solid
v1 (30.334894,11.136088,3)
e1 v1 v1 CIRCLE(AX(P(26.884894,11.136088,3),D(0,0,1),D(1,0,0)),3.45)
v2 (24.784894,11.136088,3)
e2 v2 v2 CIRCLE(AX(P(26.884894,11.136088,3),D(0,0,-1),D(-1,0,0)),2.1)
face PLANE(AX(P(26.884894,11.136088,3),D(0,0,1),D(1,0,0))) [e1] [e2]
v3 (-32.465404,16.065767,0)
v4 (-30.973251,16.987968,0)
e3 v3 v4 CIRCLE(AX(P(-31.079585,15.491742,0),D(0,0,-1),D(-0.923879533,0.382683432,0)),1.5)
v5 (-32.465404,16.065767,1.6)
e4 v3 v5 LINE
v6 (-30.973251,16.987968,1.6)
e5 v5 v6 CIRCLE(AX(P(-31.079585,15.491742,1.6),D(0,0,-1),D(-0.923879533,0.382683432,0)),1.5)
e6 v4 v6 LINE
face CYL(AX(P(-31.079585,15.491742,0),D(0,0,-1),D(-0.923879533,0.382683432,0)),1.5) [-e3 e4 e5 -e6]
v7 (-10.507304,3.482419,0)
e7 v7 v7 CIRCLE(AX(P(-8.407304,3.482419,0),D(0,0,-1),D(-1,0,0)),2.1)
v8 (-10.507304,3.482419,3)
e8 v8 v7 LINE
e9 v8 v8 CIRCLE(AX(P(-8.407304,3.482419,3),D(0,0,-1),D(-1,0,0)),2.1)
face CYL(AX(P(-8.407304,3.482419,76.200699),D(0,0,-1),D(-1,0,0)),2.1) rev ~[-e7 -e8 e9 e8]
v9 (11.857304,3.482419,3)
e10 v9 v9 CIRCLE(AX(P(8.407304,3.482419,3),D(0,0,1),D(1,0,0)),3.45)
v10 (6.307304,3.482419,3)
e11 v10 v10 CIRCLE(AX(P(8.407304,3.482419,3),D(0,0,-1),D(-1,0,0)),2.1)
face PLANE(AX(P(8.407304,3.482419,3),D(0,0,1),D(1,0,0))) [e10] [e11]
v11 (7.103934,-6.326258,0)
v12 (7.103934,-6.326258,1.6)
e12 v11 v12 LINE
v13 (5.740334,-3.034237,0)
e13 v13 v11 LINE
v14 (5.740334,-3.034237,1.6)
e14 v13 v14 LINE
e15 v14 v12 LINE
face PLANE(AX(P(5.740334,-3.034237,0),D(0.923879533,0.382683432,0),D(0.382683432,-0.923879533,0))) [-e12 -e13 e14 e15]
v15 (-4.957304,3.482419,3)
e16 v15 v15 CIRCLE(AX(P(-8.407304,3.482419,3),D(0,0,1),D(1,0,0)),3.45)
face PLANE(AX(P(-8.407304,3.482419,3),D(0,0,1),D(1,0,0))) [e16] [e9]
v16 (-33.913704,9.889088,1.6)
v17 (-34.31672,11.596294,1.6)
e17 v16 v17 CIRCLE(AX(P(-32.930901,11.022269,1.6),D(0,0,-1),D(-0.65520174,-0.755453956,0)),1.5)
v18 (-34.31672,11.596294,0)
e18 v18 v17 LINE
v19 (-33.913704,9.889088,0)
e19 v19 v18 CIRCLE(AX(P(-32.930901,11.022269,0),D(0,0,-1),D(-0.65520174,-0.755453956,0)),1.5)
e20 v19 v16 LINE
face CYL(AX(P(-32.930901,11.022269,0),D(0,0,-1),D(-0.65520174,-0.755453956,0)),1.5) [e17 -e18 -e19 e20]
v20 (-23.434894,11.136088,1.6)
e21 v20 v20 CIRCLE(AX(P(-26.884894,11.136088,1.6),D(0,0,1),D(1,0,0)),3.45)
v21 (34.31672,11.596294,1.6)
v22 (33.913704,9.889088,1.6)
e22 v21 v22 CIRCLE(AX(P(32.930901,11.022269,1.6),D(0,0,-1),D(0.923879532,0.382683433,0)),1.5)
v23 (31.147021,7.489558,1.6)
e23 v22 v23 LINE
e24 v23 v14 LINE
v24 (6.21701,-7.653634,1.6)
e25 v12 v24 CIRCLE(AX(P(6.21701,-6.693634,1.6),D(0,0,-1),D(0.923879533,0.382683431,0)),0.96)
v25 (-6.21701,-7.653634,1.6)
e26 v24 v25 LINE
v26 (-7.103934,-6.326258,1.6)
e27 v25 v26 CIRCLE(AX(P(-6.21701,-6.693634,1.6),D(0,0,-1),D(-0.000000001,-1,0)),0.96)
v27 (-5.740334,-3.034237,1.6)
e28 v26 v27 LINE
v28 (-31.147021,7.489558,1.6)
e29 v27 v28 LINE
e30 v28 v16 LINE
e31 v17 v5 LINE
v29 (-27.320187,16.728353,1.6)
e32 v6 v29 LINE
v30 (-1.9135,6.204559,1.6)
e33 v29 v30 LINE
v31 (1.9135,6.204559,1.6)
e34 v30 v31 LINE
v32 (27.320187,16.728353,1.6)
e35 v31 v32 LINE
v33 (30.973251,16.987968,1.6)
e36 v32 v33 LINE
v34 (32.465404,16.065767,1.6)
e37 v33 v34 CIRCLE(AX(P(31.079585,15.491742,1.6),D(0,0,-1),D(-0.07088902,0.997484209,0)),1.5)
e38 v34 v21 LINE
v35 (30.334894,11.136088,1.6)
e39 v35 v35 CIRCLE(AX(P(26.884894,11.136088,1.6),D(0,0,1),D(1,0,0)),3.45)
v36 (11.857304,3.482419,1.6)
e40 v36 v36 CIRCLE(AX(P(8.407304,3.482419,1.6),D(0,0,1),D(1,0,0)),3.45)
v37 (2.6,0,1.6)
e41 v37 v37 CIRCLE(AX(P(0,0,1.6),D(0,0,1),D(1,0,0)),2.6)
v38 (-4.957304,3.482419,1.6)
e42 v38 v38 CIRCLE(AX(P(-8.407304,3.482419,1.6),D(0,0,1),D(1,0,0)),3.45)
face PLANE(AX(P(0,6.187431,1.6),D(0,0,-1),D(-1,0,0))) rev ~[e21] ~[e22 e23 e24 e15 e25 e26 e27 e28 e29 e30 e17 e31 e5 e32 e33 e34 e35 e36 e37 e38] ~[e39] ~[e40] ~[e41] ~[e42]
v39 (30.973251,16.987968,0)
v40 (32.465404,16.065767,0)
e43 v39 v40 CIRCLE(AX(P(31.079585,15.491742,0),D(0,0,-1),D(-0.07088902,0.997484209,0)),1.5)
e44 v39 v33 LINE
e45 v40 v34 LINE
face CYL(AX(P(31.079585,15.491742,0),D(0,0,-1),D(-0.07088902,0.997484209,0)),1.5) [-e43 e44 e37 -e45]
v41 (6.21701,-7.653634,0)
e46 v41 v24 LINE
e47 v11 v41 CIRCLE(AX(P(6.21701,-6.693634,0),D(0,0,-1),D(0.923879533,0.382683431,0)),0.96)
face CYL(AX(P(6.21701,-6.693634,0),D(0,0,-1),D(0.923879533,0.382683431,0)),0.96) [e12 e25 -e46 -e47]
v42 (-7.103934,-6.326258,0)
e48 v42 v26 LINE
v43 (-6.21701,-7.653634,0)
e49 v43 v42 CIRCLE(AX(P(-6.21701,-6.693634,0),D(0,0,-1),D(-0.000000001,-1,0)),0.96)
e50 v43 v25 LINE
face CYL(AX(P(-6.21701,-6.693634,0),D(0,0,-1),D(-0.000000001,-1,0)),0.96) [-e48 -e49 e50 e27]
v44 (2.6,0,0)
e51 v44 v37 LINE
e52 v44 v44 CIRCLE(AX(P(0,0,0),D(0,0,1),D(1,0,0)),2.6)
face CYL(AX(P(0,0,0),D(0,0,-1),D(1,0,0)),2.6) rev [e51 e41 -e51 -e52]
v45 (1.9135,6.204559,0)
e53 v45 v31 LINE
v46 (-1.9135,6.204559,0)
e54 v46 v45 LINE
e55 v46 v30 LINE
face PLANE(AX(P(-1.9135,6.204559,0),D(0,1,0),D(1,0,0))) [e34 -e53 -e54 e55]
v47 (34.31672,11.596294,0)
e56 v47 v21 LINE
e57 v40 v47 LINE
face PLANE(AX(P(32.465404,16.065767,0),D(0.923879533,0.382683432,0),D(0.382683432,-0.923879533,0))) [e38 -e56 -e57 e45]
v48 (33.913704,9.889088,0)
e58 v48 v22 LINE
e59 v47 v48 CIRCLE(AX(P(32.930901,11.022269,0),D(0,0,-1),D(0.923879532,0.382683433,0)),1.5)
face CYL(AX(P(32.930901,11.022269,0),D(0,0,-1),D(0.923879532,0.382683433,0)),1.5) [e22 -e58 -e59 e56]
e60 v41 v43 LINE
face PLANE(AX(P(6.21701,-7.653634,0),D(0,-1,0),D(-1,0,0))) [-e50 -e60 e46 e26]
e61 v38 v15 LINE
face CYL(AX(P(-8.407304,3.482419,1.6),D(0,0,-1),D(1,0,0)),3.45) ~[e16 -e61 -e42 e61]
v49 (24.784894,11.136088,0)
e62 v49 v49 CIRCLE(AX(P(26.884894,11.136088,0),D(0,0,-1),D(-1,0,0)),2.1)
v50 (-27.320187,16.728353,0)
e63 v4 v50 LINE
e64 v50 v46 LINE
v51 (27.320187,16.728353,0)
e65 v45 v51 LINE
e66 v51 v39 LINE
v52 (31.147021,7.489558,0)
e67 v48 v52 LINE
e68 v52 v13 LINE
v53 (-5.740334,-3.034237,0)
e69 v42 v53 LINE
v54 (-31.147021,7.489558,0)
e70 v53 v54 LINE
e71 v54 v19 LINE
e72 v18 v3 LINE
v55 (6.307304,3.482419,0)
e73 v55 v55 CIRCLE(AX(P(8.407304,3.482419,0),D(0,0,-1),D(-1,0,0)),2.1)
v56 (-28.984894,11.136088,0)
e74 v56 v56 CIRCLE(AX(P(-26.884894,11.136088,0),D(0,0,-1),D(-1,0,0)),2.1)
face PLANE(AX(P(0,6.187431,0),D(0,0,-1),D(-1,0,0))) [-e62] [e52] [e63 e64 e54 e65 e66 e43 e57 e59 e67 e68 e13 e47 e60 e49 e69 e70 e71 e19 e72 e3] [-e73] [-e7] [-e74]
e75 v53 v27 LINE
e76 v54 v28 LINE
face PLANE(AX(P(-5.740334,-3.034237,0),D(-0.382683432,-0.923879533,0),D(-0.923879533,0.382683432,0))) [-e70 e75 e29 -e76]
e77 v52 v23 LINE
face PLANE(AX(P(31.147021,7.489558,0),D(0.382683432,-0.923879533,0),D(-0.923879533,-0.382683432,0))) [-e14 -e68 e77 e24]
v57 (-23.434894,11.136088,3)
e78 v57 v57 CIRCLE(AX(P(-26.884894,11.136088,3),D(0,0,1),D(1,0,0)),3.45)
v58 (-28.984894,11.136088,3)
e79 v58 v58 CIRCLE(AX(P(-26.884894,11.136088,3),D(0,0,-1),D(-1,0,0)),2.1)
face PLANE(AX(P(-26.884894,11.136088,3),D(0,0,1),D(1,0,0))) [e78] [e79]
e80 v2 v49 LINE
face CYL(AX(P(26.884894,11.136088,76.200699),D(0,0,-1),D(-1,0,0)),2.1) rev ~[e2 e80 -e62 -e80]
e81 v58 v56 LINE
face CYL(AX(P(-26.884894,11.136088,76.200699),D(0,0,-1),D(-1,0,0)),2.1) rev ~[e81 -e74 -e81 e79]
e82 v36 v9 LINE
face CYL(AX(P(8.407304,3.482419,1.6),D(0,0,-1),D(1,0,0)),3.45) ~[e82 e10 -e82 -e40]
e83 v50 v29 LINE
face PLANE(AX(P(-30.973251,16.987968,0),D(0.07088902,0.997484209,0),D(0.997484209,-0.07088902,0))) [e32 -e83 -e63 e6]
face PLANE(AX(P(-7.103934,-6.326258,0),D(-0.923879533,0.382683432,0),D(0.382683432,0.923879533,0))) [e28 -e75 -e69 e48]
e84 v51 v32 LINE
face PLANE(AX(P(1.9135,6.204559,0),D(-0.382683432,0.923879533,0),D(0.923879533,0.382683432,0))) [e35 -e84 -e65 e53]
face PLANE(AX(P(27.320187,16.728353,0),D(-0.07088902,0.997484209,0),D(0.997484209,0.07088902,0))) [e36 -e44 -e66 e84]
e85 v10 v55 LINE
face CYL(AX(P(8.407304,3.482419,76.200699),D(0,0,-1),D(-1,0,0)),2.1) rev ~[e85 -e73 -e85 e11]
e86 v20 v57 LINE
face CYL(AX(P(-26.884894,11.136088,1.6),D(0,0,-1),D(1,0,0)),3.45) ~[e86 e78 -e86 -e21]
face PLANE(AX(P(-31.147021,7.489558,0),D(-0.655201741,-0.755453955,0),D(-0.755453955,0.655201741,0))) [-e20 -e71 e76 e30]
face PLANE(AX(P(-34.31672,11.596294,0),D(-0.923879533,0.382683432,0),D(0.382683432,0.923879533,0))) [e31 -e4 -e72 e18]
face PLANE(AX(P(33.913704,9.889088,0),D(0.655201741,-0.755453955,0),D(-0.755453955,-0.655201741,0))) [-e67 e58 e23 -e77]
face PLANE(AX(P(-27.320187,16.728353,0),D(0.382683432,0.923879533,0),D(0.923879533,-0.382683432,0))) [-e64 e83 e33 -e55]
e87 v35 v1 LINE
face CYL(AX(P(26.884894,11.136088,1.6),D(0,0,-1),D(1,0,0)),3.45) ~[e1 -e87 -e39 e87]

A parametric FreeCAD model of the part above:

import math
import FreeCAD as App
import Part
import Sketcher
from FreeCAD import Vector
Q = App.Units.Quantity

doc = App.newDocument("Part")
params = doc.addObject("Spreadsheet::Sheet", "Params")
for row, (alias, value) in enumerate([
    ("sketch1_diameter", "5.2 mm"),
    ("sketch1_radius", "1.5 mm"),
    ("sketch1_radius2", "0.96 mm"),
    ("sketch1_length", "27.5 mm"),
    ("pad1_length", "1.6 mm"),
    ("sketch2_diameter", "6.9 mm"),
    ("pad2_length", "1.4 mm"),
    ("sketch3_diameter", "4.2 mm"),
    ("hole_diameter", "4.2 mm"),
], start=1):
    params.set(f"A{row}", alias)
    params.set(f"B{row}", "=" + value)
    params.setAlias(f"B{row}", alias)

body = doc.addObject("PartDesign::Body", "Body")

sketch1 = body.newObject("Sketcher::SketchObject", "Sketch")
sketch1.AttachmentSupport = (doc.getObject("XY_Plane"), [""])
sketch1.MapMode = "FlatFace"
sketch1.addGeometry([
    Part.LineSegment(Vector(1.9135, 6.204559, 0), Vector(-1.9135, 6.204559, 0)),
    Part.LineSegment(Vector(-1.9135, 6.204559, 0), Vector(-27.320187, 16.728353, 0)),
    Part.LineSegment(Vector(-27.320187, 16.728353, 0), Vector(-30.973251, 16.987968, 0)),
    Part.ArcOfCircle(Part.Circle(Vector(-31.079585, 15.491742, 0), Vector(0, 0, 1), 1.5), math.radians(85.934949), math.radians(157.5)),
    Part.LineSegment(Vector(-32.465404, 16.065767, 0), Vector(-34.31672, 11.596294, 0)),
    Part.ArcOfCircle(Part.Circle(Vector(-32.930901, 11.022269, 0), Vector(0, 0, 1), 1.5), math.radians(157.5), math.radians(229.065051)),
    Part.LineSegment(Vector(-33.913704, 9.889088, 0), Vector(-31.147021, 7.489558, 0)),
    Part.LineSegment(Vector(-31.147021, 7.489558, 0), Vector(-5.740334, -3.034237, 0)),
    Part.LineSegment(Vector(-5.740334, -3.034237, 0), Vector(-7.103934, -6.326258, 0)),
    Part.ArcOfCircle(Part.Circle(Vector(-6.21701, -6.693634, 0), Vector(0, 0, 1), 0.96), math.radians(157.5), math.radians(270)),
    Part.LineSegment(Vector(-6.21701, -7.653634, 0), Vector(6.21701, -7.653634, 0)),
    Part.ArcOfCircle(Part.Circle(Vector(6.21701, -6.693634, 0), Vector(0, 0, 1), 0.96), math.radians(-90), math.radians(22.5)),
    Part.LineSegment(Vector(7.103934, -6.326258, 0), Vector(5.740334, -3.034237, 0)),
    Part.LineSegment(Vector(5.740334, -3.034237, 0), Vector(31.147021, 7.489558, 0)),
    Part.LineSegment(Vector(31.147021, 7.489558, 0), Vector(33.913704, 9.889088, 0)),
    Part.ArcOfCircle(Part.Circle(Vector(32.930901, 11.022269, 0), Vector(0, 0, 1), 1.5), math.radians(-49.065051), math.radians(22.5)),
    Part.LineSegment(Vector(34.31672, 11.596294, 0), Vector(32.465404, 16.065767, 0)),
    Part.ArcOfCircle(Part.Circle(Vector(31.079585, 15.491742, 0), Vector(0, 0, 1), 1.5), math.radians(22.5), math.radians(94.065051)),
    Part.LineSegment(Vector(30.973251, 16.987968, 0), Vector(27.320187, 16.728353, 0)),
    Part.LineSegment(Vector(27.320187, 16.728353, 0), Vector(1.9135, 6.204559, 0)),
    Part.Circle(Vector(0, 0, 0), Vector(0, 0, 1), 2.6),
], False)
sketch1.addConstraint([
    Sketcher.Constraint("Coincident", 0, 2, 1, 1),
    Sketcher.Constraint("Coincident", 1, 2, 2, 1),
    Sketcher.Constraint("Tangent", 2, 2, 3, 1),
    Sketcher.Constraint("Tangent", 3, 2, 4, 1),
    Sketcher.Constraint("Tangent", 4, 2, 5, 1),
    Sketcher.Constraint("Tangent", 5, 2, 6, 1),
    Sketcher.Constraint("Coincident", 6, 2, 7, 1),
    Sketcher.Constraint("Coincident", 7, 2, 8, 1),
    Sketcher.Constraint("Tangent", 8, 2, 9, 1),
    Sketcher.Constraint("Tangent", 9, 2, 10, 1),
    Sketcher.Constraint("Tangent", 10, 2, 11, 1),
    Sketcher.Constraint("Tangent", 11, 2, 12, 1),
    Sketcher.Constraint("Coincident", 12, 2, 13, 1),
    Sketcher.Constraint("Coincident", 13, 2, 14, 1),
    Sketcher.Constraint("Tangent", 14, 2, 15, 1),
    Sketcher.Constraint("Tangent", 15, 2, 16, 1),
    Sketcher.Constraint("Tangent", 16, 2, 17, 1),
    Sketcher.Constraint("Tangent", 17, 2, 18, 1),
    Sketcher.Constraint("Coincident", 18, 2, 19, 1),
    Sketcher.Constraint("Coincident", 19, 2, 0, 1),
    Sketcher.Constraint("Horizontal", 0),
    Sketcher.Constraint("Horizontal", 10),
    Sketcher.Constraint("Coincident", 20, 3, -1, 1),
    Sketcher.Constraint("Equal", 3, 5),
    Sketcher.Constraint("Equal", 9, 11),
    Sketcher.Constraint("Equal", 5, 15),
    Sketcher.Constraint("Equal", 15, 17),
    Sketcher.Constraint("Symmetric", 5, 3, 15, 3, -2),
    Sketcher.Constraint("Symmetric", 3, 3, 17, 3, -2),
    Sketcher.Constraint("Symmetric", 8, 2, 11, 2, -2),
    Sketcher.Constraint("Symmetric", 6, 2, 13, 2, -2),
    Sketcher.Constraint("Symmetric", 1, 2, 18, 2, -2),
    Sketcher.Constraint("Perpendicular", 1, 4),
    Sketcher.Constraint("Perpendicular", 4, 7),
    Sketcher.Constraint("Perpendicular", 7, 8),
    Sketcher.Constraint("Perpendicular", 12, 13),
    Sketcher.Constraint("Perpendicular", 16, 19),
    Sketcher.Constraint("Equal", 2, 6),
    Sketcher.Constraint("Equal", 1, 7),
    Sketcher.Constraint("Diameter", 20, Q("5.2 mm")),
    Sketcher.Constraint("Radius", 3, Q("1.5 mm")),
    Sketcher.Constraint("Radius", 9, Q("0.96 mm")),
    Sketcher.Constraint("Angle", 1, Q("157.5 deg")),
    Sketcher.Constraint("Distance", 1, Q("27.5 mm")),
    Sketcher.Constraint("DistanceX", 0, 2, 0, 1, Q("3.827 mm")),
    Sketcher.Constraint("DistanceX", 10, 1, 10, 2, Q("12.43402 mm")),
    Sketcher.Constraint("DistanceX", 5, 3, -1, 1, Q("32.930901 mm")),
    Sketcher.Constraint("DistanceY", 5, 3, 2, 2, Q("5.965699 mm")),
    Sketcher.Constraint("DistanceY", 3, 2, 2, 2, Q("0.922201 mm")),
    Sketcher.Constraint("DistanceX", 5, 2, 3, 2, Q("1.4483 mm")),
    Sketcher.Constraint("DistanceY", -1, 1, 5, 3, Q("11.022269 mm")),
])
sketch1.setExpression("Constraints[39]", "Params.sketch1_diameter")
sketch1.setExpression("Constraints[40]", "Params.sketch1_radius")
sketch1.setExpression("Constraints[41]", "Params.sketch1_radius2")
sketch1.setExpression("Constraints[43]", "Params.sketch1_length")
pad1 = body.newObject("PartDesign::Pad", "Pad")
pad1.Profile = sketch1
pad1.setExpression("Length", "Params.pad1_length")

sketch2 = body.newObject("Sketcher::SketchObject", "Sketch001")
sketch2.AttachmentSupport = (doc.getObject("XY_Plane"), [""])
sketch2.MapMode = "FlatFace"
sketch2.AttachmentOffset = App.Placement(Vector(0, 0, 1.6), App.Rotation())
sketch2.addGeometry([
    Part.Circle(Vector(26.884894, 11.136088, 0), Vector(0, 0, 1), 3.45),
    Part.Circle(Vector(8.407304, 3.482419, 0), Vector(0, 0, 1), 3.45),
    Part.Circle(Vector(-8.407304, 3.482419, 0), Vector(0, 0, 1), 3.45),
    Part.Circle(Vector(-26.884894, 11.136088, 0), Vector(0, 0, 1), 3.45),
], False)
sketch2.addConstraint([
    Sketcher.Constraint("Equal", 0, 1),
    Sketcher.Constraint("Equal", 1, 2),
    Sketcher.Constraint("Equal", 2, 3),
    Sketcher.Constraint("Symmetric", 1, 3, 2, 3, -2),
    Sketcher.Constraint("Symmetric", 0, 3, 3, 3, -2),
    Sketcher.Constraint("Diameter", 0, Q("6.9 mm")),
    Sketcher.Constraint("DistanceX", 2, 3, 0, 3, Q("35.292198 mm")),
    Sketcher.Constraint("DistanceY", -1, 1, 1, 3, Q("3.482419 mm")),
    Sketcher.Constraint("DistanceX", 1, 3, 0, 3, Q("18.477591 mm")),
    Sketcher.Constraint("DistanceY", 1, 3, 0, 3, Q("7.653669 mm")),
])
sketch2.setExpression("Constraints[5]", "Params.sketch2_diameter")
pad2 = body.newObject("PartDesign::Pad", "Pad001")
pad2.Profile = sketch2
pad2.setExpression("Length", "Params.pad2_length")

sketch3 = body.newObject("Sketcher::SketchObject", "Sketch002")
sketch3.AttachmentSupport = (doc.getObject("XY_Plane"), [""])
sketch3.MapMode = "FlatFace"
sketch3.AttachmentOffset = App.Placement(Vector(0, 0, 3), App.Rotation())
sketch3.addGeometry([
    Part.Circle(Vector(26.884894, 11.136088, 0), Vector(0, 0, 1), 2.1),
    Part.Circle(Vector(8.407304, 3.482419, 0), Vector(0, 0, 1), 2.1),
    Part.Circle(Vector(-8.407304, 3.482419, 0), Vector(0, 0, 1), 2.1),
    Part.Circle(Vector(-26.884894, 11.136088, 0), Vector(0, 0, 1), 2.1),
], False)
sketch3.addConstraint([
    Sketcher.Constraint("Equal", 0, 1),
    Sketcher.Constraint("Equal", 1, 2),
    Sketcher.Constraint("Equal", 2, 3),
    Sketcher.Constraint("Symmetric", 1, 3, 2, 3, -2),
    Sketcher.Constraint("Symmetric", 0, 3, 3, 3, -2),
    Sketcher.Constraint("Diameter", 0, Q("4.2 mm")),
    Sketcher.Constraint("DistanceX", 2, 3, 0, 3, Q("35.292198 mm")),
    Sketcher.Constraint("DistanceY", -1, 1, 1, 3, Q("3.482419 mm")),
    Sketcher.Constraint("DistanceX", 1, 3, 0, 3, Q("18.477591 mm")),
    Sketcher.Constraint("DistanceY", 1, 3, 0, 3, Q("7.653669 mm")),
])
sketch3.setExpression("Constraints[5]", "Params.sketch3_diameter")
doc.recompute()
hole = body.newObject("PartDesign::Hole", "Hole")
hole.Profile = sketch3
hole.ThreadType = "None"
hole.setExpression("Diameter", "Params.hole_diameter")
hole.DepthType = "ThroughAll"

doc.recompute()
